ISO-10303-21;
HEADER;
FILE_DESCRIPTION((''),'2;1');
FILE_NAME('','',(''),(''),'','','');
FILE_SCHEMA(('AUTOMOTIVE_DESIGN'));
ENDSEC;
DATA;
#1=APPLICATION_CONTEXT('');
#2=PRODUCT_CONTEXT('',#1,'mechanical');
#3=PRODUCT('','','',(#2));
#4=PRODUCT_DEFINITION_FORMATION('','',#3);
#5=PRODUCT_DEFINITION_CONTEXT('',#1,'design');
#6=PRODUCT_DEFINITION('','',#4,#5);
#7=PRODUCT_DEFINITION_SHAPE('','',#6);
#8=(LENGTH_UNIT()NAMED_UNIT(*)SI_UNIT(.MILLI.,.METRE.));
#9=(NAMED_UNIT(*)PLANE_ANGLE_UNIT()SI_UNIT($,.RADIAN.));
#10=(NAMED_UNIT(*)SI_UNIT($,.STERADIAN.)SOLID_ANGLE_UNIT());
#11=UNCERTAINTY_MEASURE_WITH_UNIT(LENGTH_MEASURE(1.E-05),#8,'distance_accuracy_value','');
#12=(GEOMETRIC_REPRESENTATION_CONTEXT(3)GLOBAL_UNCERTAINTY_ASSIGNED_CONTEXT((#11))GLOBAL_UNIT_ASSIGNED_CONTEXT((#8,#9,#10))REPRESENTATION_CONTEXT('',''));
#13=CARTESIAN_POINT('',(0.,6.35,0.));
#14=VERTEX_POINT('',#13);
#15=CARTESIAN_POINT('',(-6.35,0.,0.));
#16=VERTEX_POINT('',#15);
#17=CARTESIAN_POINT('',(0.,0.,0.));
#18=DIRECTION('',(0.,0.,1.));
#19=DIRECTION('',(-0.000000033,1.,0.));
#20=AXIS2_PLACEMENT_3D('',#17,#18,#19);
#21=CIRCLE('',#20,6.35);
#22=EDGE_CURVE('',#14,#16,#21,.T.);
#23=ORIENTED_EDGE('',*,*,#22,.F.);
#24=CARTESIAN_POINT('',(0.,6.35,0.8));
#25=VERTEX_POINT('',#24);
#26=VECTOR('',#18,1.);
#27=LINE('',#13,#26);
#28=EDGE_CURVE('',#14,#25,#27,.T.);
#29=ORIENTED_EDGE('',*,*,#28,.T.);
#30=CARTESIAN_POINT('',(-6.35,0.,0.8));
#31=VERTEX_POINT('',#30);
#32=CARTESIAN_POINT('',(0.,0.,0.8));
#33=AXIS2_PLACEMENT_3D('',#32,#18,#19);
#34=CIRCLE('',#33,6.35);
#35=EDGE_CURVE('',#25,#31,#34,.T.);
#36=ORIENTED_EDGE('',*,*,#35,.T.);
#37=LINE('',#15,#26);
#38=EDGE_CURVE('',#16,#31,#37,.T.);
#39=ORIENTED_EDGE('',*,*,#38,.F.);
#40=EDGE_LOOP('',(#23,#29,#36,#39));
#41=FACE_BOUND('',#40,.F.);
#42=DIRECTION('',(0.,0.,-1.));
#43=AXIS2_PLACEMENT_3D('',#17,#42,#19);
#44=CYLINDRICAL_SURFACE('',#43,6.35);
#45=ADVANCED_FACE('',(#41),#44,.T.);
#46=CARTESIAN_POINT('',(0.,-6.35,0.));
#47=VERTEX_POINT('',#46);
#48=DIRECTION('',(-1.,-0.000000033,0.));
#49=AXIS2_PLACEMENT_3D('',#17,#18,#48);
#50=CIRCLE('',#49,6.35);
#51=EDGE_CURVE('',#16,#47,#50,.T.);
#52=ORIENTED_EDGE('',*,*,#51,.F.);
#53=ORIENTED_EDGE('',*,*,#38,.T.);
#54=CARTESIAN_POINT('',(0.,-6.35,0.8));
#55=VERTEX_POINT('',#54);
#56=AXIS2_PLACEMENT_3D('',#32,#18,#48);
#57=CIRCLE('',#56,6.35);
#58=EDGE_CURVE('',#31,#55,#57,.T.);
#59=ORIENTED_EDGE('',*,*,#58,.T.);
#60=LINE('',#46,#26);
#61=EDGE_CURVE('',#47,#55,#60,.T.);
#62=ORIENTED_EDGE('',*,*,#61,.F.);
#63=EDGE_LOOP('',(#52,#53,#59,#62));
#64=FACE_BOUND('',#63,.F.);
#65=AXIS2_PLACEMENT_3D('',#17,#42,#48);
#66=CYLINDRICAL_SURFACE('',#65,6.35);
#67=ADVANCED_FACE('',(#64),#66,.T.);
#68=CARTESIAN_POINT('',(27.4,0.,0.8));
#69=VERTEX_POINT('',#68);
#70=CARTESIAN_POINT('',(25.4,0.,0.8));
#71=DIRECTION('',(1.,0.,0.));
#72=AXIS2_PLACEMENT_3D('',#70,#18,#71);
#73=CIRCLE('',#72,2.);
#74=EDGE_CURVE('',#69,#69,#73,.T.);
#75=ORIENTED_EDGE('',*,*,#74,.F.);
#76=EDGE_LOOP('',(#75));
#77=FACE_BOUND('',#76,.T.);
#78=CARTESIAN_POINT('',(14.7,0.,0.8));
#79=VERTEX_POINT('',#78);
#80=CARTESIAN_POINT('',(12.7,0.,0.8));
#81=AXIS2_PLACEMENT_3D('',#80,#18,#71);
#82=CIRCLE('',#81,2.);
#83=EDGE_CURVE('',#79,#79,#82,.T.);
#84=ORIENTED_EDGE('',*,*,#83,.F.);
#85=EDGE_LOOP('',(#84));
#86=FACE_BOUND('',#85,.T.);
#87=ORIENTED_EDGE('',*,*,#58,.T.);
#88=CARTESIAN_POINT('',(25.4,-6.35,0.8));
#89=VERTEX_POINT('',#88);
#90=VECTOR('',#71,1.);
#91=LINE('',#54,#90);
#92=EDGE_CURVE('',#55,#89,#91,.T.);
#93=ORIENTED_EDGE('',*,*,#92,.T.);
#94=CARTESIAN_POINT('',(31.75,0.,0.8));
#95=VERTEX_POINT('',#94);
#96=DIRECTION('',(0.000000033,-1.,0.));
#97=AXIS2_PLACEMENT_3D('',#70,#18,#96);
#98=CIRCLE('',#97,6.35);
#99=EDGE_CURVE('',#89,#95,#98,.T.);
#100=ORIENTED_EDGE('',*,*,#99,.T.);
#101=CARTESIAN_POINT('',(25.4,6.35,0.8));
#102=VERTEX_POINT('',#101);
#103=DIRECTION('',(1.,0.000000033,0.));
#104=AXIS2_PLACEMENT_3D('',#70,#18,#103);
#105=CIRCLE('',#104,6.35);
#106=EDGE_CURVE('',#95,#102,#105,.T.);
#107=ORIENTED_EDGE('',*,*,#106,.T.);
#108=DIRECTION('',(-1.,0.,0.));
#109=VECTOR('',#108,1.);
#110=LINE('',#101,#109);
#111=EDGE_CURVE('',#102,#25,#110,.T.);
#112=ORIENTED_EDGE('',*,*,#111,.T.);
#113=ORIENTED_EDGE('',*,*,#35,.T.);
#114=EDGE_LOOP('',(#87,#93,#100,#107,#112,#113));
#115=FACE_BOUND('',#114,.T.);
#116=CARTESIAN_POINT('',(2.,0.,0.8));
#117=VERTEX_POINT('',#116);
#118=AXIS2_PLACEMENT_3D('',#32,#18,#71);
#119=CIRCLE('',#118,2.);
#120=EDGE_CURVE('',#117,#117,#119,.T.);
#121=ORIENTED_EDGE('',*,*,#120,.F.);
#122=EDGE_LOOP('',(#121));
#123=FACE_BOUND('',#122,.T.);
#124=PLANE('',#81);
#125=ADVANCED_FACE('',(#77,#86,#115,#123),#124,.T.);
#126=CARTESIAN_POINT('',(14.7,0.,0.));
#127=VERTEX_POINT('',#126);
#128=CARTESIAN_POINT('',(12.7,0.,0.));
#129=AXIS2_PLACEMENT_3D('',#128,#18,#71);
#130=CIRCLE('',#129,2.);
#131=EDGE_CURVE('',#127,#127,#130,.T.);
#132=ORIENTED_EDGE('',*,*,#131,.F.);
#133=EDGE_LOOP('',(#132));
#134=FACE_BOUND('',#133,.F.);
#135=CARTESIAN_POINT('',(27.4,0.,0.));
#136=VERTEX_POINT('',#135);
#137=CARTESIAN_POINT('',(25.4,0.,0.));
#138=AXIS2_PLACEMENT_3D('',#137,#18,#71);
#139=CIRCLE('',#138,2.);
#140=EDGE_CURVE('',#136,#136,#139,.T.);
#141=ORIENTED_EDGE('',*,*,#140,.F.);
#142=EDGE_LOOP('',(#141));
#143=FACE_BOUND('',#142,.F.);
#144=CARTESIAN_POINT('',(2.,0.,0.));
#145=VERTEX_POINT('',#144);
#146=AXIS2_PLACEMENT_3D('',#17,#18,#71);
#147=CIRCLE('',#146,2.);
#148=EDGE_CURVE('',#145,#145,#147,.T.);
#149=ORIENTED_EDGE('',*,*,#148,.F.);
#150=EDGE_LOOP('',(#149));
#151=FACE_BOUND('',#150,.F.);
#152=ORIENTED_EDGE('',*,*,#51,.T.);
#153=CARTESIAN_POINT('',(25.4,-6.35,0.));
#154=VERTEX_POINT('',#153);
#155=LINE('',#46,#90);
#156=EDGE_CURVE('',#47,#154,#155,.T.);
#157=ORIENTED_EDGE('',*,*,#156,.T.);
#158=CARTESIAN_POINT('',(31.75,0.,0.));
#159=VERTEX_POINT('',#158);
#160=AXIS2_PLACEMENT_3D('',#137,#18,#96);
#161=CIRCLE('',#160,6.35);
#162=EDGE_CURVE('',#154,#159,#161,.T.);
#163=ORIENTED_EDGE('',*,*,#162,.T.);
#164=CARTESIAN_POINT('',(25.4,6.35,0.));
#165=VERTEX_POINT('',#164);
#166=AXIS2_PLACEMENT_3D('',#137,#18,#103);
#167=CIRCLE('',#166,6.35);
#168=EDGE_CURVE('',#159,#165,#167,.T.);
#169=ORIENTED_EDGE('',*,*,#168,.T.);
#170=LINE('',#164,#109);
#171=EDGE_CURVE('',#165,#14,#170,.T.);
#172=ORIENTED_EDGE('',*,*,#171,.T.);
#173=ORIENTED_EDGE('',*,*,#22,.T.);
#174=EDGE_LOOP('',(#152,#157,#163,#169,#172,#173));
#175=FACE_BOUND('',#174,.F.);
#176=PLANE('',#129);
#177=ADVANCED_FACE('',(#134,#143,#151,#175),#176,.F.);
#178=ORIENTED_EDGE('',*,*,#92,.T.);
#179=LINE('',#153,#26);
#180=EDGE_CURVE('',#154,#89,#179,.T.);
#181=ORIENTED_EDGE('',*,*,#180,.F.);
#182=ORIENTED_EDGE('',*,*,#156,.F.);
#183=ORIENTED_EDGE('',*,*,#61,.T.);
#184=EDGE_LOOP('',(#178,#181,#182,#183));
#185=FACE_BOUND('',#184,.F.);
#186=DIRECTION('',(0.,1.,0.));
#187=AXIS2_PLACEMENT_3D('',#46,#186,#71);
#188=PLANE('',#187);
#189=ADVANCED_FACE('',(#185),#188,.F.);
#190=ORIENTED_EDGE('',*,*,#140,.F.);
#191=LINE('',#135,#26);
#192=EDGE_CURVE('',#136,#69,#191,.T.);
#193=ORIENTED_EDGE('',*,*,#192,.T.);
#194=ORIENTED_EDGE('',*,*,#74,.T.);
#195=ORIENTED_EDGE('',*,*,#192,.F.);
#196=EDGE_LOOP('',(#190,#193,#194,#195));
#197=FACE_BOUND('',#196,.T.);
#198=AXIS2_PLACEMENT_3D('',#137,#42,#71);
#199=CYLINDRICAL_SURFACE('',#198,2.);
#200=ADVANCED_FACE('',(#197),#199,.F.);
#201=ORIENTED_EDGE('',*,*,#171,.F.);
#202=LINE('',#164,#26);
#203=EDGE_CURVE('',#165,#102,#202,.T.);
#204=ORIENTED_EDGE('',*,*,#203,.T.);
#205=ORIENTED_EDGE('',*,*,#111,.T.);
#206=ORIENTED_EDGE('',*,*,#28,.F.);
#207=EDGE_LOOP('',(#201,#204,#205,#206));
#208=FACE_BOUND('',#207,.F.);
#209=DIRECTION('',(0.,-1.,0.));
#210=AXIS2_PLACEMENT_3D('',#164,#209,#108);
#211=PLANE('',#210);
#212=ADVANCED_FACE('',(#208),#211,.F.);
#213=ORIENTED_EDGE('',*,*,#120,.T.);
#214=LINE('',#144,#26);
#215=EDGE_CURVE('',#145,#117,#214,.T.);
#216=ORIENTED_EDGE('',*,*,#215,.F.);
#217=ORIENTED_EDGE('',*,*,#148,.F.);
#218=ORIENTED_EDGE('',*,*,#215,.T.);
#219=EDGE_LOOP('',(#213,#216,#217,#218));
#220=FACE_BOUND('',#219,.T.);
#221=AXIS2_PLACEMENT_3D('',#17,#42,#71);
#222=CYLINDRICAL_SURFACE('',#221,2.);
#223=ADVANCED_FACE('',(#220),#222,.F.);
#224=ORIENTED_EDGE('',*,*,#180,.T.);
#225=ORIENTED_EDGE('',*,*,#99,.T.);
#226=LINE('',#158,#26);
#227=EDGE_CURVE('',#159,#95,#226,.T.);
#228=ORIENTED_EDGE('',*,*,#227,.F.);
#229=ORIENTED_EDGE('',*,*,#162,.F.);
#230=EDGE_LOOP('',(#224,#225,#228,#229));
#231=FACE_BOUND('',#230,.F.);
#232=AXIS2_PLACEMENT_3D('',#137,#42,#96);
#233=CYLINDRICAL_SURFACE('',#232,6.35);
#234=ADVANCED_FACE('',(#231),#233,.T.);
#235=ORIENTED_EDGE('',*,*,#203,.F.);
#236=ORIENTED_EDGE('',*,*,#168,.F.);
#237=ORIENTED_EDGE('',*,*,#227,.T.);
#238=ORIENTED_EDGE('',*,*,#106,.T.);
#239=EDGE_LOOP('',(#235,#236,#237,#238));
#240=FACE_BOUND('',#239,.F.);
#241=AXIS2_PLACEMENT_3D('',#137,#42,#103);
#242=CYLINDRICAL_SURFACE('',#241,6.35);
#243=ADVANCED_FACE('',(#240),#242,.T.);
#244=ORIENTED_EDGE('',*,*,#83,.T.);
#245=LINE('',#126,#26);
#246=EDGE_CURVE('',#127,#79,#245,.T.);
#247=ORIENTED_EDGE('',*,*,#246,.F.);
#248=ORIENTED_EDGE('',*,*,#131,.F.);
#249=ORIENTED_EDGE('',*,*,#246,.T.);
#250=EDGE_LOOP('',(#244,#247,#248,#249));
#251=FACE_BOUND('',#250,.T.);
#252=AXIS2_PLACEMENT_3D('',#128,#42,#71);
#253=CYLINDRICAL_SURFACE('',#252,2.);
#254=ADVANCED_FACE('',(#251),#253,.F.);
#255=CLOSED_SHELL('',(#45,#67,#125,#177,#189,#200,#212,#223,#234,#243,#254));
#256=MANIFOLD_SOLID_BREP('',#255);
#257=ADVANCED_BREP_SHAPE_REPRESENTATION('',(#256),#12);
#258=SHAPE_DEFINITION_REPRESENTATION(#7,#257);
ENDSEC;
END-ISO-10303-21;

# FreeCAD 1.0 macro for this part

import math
import FreeCAD as App
import Part
import Sketcher

V = App.Vector

doc = App.newDocument("Part")
params = doc.addObject("Spreadsheet::Sheet", "Params")
for row, (alias, value) in enumerate([
    ("sketch1_diameter", "4 mm"),
    ("sketch1_radius", "6.35 mm"),
    ("sketch1_width", "25.4 mm"),
    ("pad1_length", "0.8 mm"),
], start=1):
    params.set(f"A{row}", alias)
    params.set(f"B{row}", "=" + value)
    params.setAlias(f"B{row}", alias)

body = doc.addObject("PartDesign::Body", "Body")

# Sketch on XY plane
sketch1 = doc.addObject("Sketcher::SketchObject", "Sketch")
body.addObject(sketch1)
sketch1.AttachmentSupport = (doc.XY_Plane, [""])
sketch1.MapMode = "FlatFace"
sketch1.addGeometry([
    Part.LineSegment(V(0, -6.35, 0), V(25.4, -6.35, 0)),  # 0
    Part.ArcOfCircle(Part.Circle(V(25.4, 0, 0), V(0, 0, 1), 6.35), math.radians(-89.999998), math.radians(-0.000002)),  # 1
    Part.ArcOfCircle(Part.Circle(V(25.4, 0, 0), V(0, 0, 1), 6.35), math.radians(0.000002), math.radians(89.999998)),  # 2
    Part.LineSegment(V(25.4, 6.35, 0), V(0, 6.35, 0)),  # 3
    Part.ArcOfCircle(Part.Circle(V(0, 0, 0), V(0, 0, 1), 6.35), math.radians(90.000002), math.radians(179.999998)),  # 4
    Part.ArcOfCircle(Part.Circle(V(0, 0, 0), V(0, 0, 1), 6.35), math.radians(-179.999998), math.radians(-90.000002)),  # 5
    Part.Circle(V(0, 0, 0), V(0, 0, 1), 2),  # 6
    Part.Circle(V(12.7, 0, 0), V(0, 0, 1), 2),  # 7
    Part.Circle(V(25.4, 0, 0), V(0, 0, 1), 2),  # 8
], False)
sketch1.addConstraint([
    Sketcher.Constraint("Tangent", 0, 2, 1, 1),
    Sketcher.Constraint("Tangent", 1, 2, 2, 1),
    Sketcher.Constraint("Tangent", 2, 2, 3, 1),
    Sketcher.Constraint("Tangent", 3, 2, 4, 1),
    Sketcher.Constraint("Tangent", 4, 2, 5, 1),
    Sketcher.Constraint("Tangent", 5, 2, 0, 1),
    Sketcher.Constraint("Horizontal", 0),
    Sketcher.Constraint("Horizontal", 3),
    Sketcher.Constraint("Coincident", 4, 3, -1, 1),
    Sketcher.Constraint("Coincident", 6, 3, -1, 1),
    Sketcher.Constraint("Coincident", 8, 3, 1, 3),
    Sketcher.Constraint("Equal", 1, 2),
    Sketcher.Constraint("Equal", 2, 4),
    Sketcher.Constraint("Equal", 6, 7),
    Sketcher.Constraint("Equal", 7, 8),
    Sketcher.Constraint("PointOnObject", 7, 3, -1),
    Sketcher.Constraint("PointOnObject", 1, 2, -1),
    Sketcher.Constraint("PointOnObject", 4, 2, -1),
    Sketcher.Constraint("Diameter", 6, 4.0),
    Sketcher.Constraint("Radius", 1, 6.35),
    Sketcher.Constraint("DistanceX", 0, 1, 0, 2, 25.4),
    Sketcher.Constraint("DistanceX", -1, 1, 7, 3, 12.7),
])
sketch1.setExpression("Constraints[18]", "Params.sketch1_diameter")
sketch1.setExpression("Constraints[19]", "Params.sketch1_radius")
sketch1.setExpression("Constraints[20]", "Params.sketch1_width")
pad1 = doc.addObject("PartDesign::Pad", "Pad")
body.addObject(pad1)
pad1.Profile = sketch1
pad1.setExpression("Length", "Params.pad1_length")

doc.recompute()
